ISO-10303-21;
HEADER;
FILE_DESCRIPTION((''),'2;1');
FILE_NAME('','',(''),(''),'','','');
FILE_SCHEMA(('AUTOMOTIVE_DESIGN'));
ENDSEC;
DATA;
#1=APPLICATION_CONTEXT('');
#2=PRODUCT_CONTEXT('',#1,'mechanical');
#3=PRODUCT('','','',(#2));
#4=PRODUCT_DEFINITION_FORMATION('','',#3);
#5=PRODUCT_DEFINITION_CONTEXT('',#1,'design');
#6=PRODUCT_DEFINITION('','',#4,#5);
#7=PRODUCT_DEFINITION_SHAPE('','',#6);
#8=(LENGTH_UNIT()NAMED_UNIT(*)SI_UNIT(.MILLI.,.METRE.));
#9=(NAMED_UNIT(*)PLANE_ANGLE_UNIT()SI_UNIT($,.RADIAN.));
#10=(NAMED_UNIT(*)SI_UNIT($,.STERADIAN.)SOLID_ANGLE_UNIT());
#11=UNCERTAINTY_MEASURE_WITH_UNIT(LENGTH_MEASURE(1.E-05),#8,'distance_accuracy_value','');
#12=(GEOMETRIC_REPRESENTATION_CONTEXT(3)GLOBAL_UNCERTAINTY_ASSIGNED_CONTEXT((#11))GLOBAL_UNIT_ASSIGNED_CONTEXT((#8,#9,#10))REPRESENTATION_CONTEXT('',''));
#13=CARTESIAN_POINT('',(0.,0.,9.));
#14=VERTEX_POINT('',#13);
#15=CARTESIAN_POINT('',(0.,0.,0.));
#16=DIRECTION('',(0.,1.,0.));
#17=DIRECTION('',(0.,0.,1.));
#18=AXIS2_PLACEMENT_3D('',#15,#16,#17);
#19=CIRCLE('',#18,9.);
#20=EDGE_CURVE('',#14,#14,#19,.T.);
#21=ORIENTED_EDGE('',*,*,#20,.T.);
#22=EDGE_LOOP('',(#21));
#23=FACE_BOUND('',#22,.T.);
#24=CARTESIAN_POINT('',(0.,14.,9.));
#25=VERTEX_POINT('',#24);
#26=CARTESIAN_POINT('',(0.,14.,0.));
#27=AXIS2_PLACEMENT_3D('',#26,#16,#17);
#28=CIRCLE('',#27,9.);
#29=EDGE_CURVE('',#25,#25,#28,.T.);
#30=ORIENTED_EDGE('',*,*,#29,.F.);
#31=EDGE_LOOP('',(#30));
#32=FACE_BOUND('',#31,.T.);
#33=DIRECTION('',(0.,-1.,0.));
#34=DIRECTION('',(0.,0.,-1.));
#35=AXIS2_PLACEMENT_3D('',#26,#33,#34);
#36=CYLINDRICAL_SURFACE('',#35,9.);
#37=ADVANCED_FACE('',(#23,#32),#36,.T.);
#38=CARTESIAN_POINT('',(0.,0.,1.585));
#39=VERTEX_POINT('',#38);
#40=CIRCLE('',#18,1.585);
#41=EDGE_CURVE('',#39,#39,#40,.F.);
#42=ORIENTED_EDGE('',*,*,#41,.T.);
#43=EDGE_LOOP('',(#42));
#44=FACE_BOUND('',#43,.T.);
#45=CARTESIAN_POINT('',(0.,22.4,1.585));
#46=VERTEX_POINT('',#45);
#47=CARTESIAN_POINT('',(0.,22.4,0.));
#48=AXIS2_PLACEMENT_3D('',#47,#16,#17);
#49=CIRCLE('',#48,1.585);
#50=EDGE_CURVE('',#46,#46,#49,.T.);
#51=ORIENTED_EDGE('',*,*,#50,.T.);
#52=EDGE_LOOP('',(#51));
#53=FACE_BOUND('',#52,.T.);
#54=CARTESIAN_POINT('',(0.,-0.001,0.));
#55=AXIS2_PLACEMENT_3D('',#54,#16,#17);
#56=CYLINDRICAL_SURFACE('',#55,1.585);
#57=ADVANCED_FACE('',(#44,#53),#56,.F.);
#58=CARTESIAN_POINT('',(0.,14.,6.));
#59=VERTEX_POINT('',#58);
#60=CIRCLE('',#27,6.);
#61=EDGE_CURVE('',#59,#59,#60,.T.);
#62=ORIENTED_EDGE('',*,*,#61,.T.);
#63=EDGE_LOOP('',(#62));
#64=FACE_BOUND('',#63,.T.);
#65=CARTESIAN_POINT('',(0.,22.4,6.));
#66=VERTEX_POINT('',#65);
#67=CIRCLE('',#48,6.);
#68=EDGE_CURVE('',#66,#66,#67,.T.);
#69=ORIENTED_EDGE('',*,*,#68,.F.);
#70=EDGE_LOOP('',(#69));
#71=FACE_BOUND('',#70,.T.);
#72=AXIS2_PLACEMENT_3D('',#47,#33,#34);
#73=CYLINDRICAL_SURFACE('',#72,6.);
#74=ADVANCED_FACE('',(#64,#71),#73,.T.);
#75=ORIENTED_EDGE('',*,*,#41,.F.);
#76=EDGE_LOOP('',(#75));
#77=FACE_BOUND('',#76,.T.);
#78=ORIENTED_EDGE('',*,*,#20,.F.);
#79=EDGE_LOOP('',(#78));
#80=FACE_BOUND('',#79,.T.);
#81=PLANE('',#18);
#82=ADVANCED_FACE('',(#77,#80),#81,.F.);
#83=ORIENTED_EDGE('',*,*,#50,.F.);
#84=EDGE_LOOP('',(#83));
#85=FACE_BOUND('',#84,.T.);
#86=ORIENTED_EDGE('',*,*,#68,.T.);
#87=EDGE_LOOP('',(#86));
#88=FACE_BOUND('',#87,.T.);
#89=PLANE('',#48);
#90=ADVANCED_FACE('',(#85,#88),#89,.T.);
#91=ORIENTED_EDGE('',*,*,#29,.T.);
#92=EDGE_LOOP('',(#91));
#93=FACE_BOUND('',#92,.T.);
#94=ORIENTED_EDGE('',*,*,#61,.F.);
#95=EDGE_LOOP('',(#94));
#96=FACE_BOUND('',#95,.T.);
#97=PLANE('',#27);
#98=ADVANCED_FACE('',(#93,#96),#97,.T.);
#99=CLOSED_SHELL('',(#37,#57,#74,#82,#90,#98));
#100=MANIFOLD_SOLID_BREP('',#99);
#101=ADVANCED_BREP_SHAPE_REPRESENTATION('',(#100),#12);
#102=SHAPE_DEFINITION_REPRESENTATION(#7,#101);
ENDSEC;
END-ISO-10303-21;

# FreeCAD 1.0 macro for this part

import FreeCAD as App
import Part
import Sketcher
from FreeCAD import Vector
Q = App.Units.Quantity

doc = App.newDocument("Part")
body = doc.addObject("PartDesign::Body", "Body")

sketch1 = body.newObject("Sketcher::SketchObject", "Sketch")
sketch1.AttachmentSupport = (doc.getObject("XZ_Plane"), [""])
sketch1.MapMode = "FlatFace"
sketch1.addGeometry(Part.Circle(Vector(0, 0, 0), Vector(0, 0, 1), 9), False)
sketch1.addConstraint([
    Sketcher.Constraint("Coincident", 0, 3, -1, 1),
    Sketcher.Constraint("Diameter", 0, Q("18 mm")),
])
pad1 = body.newObject("PartDesign::Pad", "Pad")
pad1.Profile = sketch1
pad1.Length = 14
pad1.Reversed = True

sketch2 = body.newObject("Sketcher::SketchObject", "Sketch001")
sketch2.AttachmentSupport = (doc.getObject("XZ_Plane"), [""])
sketch2.MapMode = "FlatFace"
sketch2.AttachmentOffset = App.Placement(Vector(0, 0, -14), App.Rotation())
sketch2.addGeometry(Part.Circle(Vector(0, 0, 0), Vector(0, 0, 1), 6), False)
sketch2.addConstraint([
    Sketcher.Constraint("Coincident", 0, 3, -1, 1),
    Sketcher.Constraint("Diameter", 0, Q("12 mm")),
])
pad2 = body.newObject("PartDesign::Pad", "Pad001")
pad2.Profile = sketch2
pad2.Length = 8.4
pad2.Reversed = True

sketch3 = body.newObject("Sketcher::SketchObject", "Sketch002")
sketch3.AttachmentSupport = (doc.getObject("XZ_Plane"), [""])
sketch3.MapMode = "FlatFace"
sketch3.AttachmentOffset = App.Placement(Vector(0, 0, -22.4), App.Rotation())
sketch3.addGeometry(Part.Circle(Vector(0, 0, 0), Vector(0, 0, 1), 1.6), False)
sketch3.addConstraint([
    Sketcher.Constraint("Coincident", 0, 3, -1, 1),
    Sketcher.Constraint("Diameter", 0, Q("3.17 mm")),
])
pocket1 = body.newObject("PartDesign::Pocket", "Pocket")
pocket1.Profile = sketch3
pocket1.Type = "UpToFirst"
pocket1.Reversed = True

doc.recompute()
